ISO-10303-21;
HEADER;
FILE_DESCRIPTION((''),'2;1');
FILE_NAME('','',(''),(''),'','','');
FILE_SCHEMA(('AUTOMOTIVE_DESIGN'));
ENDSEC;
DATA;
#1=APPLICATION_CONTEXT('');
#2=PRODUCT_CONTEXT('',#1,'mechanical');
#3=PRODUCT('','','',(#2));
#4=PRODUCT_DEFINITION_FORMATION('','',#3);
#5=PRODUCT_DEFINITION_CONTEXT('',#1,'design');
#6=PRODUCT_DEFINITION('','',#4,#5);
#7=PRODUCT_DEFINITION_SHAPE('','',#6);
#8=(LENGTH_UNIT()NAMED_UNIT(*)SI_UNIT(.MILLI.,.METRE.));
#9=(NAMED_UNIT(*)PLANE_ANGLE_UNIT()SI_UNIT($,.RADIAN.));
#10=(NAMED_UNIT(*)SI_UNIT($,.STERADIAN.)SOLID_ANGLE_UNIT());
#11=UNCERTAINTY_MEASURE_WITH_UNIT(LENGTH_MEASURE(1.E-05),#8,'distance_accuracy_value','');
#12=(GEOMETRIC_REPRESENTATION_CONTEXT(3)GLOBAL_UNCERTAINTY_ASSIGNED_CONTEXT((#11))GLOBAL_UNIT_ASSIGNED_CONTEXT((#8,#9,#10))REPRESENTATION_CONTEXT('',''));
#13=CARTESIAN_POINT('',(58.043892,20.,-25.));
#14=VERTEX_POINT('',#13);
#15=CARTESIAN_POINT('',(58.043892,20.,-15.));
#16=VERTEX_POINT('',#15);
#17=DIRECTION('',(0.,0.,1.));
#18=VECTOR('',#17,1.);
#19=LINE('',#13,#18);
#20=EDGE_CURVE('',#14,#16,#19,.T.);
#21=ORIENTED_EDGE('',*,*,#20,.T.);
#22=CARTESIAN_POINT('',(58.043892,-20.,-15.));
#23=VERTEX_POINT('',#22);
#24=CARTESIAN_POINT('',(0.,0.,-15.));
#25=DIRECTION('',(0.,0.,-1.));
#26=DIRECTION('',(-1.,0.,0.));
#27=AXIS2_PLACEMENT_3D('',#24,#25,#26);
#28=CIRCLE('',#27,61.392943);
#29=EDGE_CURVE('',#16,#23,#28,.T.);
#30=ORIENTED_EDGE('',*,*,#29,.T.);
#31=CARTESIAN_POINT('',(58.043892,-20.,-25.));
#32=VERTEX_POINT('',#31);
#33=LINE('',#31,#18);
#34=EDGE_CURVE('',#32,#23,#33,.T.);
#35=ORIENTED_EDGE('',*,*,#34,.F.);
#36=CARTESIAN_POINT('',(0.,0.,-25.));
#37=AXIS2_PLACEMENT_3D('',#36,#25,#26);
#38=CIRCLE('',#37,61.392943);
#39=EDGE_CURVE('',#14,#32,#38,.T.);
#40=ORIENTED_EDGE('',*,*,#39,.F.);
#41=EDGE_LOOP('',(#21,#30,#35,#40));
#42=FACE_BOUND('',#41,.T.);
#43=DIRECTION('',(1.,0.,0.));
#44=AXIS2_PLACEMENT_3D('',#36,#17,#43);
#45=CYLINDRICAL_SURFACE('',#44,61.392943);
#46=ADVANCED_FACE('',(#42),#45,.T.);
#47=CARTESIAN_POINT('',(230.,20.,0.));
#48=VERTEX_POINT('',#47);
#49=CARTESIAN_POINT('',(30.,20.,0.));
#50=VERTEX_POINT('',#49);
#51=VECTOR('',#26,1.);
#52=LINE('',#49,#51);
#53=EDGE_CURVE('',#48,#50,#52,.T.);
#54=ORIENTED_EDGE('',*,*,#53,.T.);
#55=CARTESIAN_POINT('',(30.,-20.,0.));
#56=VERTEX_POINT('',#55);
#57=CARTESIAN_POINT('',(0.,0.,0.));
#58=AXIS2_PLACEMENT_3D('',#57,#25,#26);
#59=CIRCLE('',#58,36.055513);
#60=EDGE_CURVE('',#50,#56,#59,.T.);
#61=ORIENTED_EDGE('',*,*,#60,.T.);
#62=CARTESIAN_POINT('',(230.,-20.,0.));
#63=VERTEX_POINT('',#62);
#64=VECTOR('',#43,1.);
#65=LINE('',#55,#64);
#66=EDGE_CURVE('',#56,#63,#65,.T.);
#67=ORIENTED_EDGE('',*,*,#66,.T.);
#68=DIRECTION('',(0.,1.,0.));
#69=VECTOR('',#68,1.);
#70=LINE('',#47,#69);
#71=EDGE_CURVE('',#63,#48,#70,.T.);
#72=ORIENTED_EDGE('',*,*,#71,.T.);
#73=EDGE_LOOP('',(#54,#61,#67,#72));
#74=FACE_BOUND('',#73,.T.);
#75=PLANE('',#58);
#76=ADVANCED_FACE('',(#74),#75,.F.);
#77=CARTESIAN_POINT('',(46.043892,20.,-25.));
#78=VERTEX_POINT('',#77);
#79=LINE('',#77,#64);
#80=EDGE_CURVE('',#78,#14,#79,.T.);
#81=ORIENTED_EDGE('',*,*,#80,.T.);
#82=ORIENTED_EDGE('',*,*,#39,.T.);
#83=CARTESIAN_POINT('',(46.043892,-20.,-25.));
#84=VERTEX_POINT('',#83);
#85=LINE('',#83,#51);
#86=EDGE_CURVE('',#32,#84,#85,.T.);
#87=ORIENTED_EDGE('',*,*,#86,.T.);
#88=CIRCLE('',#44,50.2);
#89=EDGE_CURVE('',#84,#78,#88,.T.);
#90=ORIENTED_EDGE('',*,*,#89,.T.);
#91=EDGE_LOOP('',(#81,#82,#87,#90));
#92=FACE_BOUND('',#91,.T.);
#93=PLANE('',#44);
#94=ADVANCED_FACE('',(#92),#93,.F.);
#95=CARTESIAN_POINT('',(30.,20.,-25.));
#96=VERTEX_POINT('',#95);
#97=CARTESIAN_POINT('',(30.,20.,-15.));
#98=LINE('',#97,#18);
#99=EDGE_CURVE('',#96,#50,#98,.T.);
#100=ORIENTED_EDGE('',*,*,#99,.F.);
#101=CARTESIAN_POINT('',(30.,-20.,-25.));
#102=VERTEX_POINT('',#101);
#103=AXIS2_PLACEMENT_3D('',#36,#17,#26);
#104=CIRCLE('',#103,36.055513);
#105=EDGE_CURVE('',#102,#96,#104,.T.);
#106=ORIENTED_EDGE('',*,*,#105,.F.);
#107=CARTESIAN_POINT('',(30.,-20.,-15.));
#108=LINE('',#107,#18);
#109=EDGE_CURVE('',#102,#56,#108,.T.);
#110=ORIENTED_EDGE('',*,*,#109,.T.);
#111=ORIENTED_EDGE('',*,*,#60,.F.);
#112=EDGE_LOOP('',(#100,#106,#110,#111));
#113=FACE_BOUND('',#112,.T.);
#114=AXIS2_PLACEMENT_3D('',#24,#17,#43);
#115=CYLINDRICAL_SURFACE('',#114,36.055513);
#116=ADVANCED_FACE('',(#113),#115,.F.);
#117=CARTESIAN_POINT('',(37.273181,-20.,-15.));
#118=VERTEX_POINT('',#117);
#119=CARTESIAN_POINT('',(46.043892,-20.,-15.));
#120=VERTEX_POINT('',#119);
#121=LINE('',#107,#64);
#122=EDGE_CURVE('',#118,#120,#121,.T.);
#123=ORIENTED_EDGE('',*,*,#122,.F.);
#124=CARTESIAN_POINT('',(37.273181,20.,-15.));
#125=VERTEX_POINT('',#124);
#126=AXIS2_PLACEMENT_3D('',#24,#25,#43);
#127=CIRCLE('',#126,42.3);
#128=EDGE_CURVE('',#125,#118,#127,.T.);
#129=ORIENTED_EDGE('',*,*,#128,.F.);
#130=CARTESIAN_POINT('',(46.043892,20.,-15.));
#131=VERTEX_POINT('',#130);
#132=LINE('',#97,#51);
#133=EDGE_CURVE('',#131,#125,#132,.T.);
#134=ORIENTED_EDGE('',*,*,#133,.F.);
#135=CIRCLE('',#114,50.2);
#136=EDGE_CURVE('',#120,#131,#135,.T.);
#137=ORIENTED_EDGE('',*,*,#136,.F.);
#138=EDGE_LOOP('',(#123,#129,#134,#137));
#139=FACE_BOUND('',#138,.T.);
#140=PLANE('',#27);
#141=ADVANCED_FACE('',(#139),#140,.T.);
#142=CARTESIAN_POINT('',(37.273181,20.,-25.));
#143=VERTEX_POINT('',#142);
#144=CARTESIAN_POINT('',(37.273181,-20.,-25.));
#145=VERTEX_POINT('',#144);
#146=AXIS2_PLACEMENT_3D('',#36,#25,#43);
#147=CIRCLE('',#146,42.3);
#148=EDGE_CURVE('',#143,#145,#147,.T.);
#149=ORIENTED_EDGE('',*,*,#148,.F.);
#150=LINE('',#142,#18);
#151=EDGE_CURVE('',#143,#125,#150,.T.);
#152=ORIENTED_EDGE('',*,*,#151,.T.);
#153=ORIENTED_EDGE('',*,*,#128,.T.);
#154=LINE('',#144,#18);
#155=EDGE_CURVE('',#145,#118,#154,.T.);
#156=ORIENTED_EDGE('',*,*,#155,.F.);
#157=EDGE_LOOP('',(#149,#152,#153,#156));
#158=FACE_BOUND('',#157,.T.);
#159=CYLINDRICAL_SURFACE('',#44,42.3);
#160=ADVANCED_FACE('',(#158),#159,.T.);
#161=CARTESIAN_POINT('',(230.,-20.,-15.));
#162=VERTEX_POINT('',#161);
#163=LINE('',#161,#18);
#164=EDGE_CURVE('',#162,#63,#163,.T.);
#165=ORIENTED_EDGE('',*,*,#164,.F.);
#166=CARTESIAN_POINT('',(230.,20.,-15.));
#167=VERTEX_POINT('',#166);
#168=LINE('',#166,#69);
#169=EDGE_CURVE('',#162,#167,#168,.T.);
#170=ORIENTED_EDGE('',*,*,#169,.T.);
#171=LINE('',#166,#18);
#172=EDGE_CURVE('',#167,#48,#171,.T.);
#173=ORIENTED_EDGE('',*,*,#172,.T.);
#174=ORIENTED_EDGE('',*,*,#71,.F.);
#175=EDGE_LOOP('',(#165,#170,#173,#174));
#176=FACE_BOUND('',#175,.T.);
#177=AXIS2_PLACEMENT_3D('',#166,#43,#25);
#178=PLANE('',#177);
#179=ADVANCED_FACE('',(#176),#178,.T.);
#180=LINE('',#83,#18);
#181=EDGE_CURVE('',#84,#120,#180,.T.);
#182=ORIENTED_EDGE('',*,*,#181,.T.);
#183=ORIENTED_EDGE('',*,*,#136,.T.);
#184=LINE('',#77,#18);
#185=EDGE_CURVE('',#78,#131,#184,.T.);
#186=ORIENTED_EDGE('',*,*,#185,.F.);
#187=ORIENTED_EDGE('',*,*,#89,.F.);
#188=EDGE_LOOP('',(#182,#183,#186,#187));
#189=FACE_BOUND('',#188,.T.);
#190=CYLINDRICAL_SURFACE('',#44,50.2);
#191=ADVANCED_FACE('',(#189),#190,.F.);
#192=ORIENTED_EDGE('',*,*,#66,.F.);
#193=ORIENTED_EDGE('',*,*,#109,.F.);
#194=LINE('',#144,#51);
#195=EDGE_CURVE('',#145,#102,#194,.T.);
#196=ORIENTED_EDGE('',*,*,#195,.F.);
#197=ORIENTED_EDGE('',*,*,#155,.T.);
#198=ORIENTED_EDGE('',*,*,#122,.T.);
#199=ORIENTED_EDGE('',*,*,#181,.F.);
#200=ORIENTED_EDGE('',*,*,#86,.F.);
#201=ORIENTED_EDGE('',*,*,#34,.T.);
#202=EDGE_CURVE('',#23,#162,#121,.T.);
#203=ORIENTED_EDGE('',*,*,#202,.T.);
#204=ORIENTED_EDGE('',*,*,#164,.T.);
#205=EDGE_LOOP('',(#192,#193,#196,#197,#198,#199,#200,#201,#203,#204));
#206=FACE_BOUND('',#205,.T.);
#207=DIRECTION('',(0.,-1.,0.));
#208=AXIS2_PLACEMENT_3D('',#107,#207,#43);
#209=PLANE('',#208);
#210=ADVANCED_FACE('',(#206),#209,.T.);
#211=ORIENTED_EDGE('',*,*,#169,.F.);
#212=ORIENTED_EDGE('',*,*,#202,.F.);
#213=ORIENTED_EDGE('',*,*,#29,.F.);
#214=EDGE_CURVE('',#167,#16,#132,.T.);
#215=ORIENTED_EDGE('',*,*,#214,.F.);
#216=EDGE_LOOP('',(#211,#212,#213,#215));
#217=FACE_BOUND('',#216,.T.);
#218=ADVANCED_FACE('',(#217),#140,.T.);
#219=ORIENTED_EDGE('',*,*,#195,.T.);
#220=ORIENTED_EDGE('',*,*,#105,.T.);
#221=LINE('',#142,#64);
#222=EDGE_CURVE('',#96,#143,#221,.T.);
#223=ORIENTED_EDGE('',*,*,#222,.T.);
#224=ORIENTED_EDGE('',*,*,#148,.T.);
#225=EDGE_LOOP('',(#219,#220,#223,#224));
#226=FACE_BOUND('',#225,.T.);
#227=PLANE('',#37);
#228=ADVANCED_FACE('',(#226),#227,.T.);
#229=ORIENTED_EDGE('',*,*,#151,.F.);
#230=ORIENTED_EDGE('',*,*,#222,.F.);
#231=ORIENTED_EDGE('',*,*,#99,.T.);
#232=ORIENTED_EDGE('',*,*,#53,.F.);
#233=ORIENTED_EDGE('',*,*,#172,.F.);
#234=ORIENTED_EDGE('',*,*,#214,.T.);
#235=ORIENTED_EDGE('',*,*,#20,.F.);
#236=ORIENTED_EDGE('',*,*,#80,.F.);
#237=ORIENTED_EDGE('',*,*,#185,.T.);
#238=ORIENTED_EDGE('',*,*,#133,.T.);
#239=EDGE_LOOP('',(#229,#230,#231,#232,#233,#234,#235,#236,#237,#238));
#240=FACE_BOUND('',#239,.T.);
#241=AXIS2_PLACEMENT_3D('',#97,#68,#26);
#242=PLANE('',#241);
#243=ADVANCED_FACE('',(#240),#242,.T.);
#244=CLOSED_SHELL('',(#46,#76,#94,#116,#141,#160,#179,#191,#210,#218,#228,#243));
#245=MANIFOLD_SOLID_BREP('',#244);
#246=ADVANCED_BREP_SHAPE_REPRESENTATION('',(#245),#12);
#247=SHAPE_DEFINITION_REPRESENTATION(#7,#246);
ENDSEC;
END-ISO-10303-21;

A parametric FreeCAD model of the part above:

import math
import FreeCAD as App
import Part
import Sketcher
Q = App.Units.Quantity

doc = App.newDocument("Part")
body = doc.addObject("PartDesign::Body", "Body")

sketch1 = body.newObject("Sketcher::SketchObject", "Sketch")
sketch1.AttachmentSupport = (doc.getObject("XY_Plane"), [""])
sketch1.MapMode = "FlatFace"
sketch1.addGeometry([
    Part.LineSegment(App.Vector(230, -20, 0), App.Vector(230, 20, 0)),
    Part.LineSegment(App.Vector(230, 20, 0), App.Vector(30, 20, 0)),
    Part.ArcOfCircle(Part.Circle(App.Vector(0, 0, 0), App.Vector(0, 0, 1), 36), math.radians(-34), math.radians(34)),
    Part.LineSegment(App.Vector(30, -20, 0), App.Vector(230, -20, 0)),
], False)
sketch1.addConstraint([
    Sketcher.Constraint("Coincident", 0, 2, 1, 1),
    Sketcher.Constraint("Coincident", 1, 2, 2, 2),
    Sketcher.Constraint("Coincident", 2, 1, 3, 1),
    Sketcher.Constraint("Coincident", 3, 2, 0, 1),
    Sketcher.Constraint("Vertical", 0),
    Sketcher.Constraint("Horizontal", 1),
    Sketcher.Constraint("Horizontal", 3),
    Sketcher.Constraint("Coincident", 2, 3, -1, 1),
    Sketcher.Constraint("Vertical", 1, 2, 2, 1),
    Sketcher.Constraint("DistanceX", 1, 2, 1, 1, Q("200 mm")),
    Sketcher.Constraint("DistanceY", 0, 1, 0, 2, Q("40 mm")),
    Sketcher.Constraint("DistanceX", -1, 1, 0, 2, Q("230 mm")),
])
pad1 = body.newObject("PartDesign::Pad", "Pad")
pad1.Profile = sketch1
pad1.Length = 15
pad1.Reversed = True

sketch2 = body.newObject("Sketcher::SketchObject", "Sketch001")
sketch2.AttachmentSupport = (doc.getObject("XY_Plane"), [""])
sketch2.MapMode = "FlatFace"
sketch2.AttachmentOffset = App.Placement(App.Vector(0, 0, -15), App.Rotation())
sketch2.addGeometry([
    Part.LineSegment(App.Vector(30, 20, 0), App.Vector(37, 20, 0)),
    Part.ArcOfCircle(Part.Circle(App.Vector(0, 0, 0), App.Vector(0, 0, 1), 42), math.radians(-28), math.radians(28)),
    Part.LineSegment(App.Vector(37, -20, 0), App.Vector(30, -20, 0)),
    Part.ArcOfCircle(Part.Circle(App.Vector(0, 0, 0), App.Vector(0, 0, 1), 36), math.radians(-34), math.radians(34)),
    Part.LineSegment(App.Vector(46, 20, 0), App.Vector(58, 20, 0)),
    Part.ArcOfCircle(Part.Circle(App.Vector(0, 0, 0), App.Vector(0, 0, 1), 61), math.radians(-19), math.radians(19)),
    Part.LineSegment(App.Vector(58, -20, 0), App.Vector(46, -20, 0)),
    Part.ArcOfCircle(Part.Circle(App.Vector(0, 0, 0), App.Vector(0, 0, 1), 50), math.radians(-23), math.radians(23)),
], False)
sketch2.addConstraint([
    Sketcher.Constraint("Coincident", 0, 2, 1, 2),
    Sketcher.Constraint("Coincident", 1, 1, 2, 1),
    Sketcher.Constraint("Coincident", 2, 2, 3, 1),
    Sketcher.Constraint("Coincident", 3, 2, 0, 1),
    Sketcher.Constraint("Coincident", 4, 2, 5, 2),
    Sketcher.Constraint("Coincident", 5, 1, 6, 1),
    Sketcher.Constraint("Coincident", 6, 2, 7, 1),
    Sketcher.Constraint("Coincident", 7, 2, 4, 1),
    Sketcher.Constraint("Horizontal", 0),
    Sketcher.Constraint("Horizontal", 2),
    Sketcher.Constraint("Horizontal", 4),
    Sketcher.Constraint("Horizontal", 6),
    Sketcher.Constraint("Coincident", 1, 3, -1, 1),
    Sketcher.Constraint("Coincident", 3, 3, -1, 1),
    Sketcher.Constraint("Coincident", 5, 3, -1, 1),
    Sketcher.Constraint("Coincident", 7, 3, -1, 1),
    Sketcher.Constraint("Horizontal", 3, 2, 4, 2),
    Sketcher.Constraint("Horizontal", 2, 2, 5, 1),
    Sketcher.Constraint("Vertical", 0, 2, 1, 1),
    Sketcher.Constraint("Radius", 1, Q("42.3 mm")),
    Sketcher.Constraint("Radius", 7, Q("50.2 mm")),
    Sketcher.Constraint("DistanceX", 4, 1, 4, 2, Q("12 mm")),
    Sketcher.Constraint("DistanceY", -1, 1, 0, 2, Q("20 mm")),
    Sketcher.Constraint("DistanceX", -1, 1, 2, 2, Q("30 mm")),
])
pad2 = body.newObject("PartDesign::Pad", "Pad001")
pad2.Profile = sketch2
pad2.Length = 10
pad2.Reversed = True

doc.recompute()
